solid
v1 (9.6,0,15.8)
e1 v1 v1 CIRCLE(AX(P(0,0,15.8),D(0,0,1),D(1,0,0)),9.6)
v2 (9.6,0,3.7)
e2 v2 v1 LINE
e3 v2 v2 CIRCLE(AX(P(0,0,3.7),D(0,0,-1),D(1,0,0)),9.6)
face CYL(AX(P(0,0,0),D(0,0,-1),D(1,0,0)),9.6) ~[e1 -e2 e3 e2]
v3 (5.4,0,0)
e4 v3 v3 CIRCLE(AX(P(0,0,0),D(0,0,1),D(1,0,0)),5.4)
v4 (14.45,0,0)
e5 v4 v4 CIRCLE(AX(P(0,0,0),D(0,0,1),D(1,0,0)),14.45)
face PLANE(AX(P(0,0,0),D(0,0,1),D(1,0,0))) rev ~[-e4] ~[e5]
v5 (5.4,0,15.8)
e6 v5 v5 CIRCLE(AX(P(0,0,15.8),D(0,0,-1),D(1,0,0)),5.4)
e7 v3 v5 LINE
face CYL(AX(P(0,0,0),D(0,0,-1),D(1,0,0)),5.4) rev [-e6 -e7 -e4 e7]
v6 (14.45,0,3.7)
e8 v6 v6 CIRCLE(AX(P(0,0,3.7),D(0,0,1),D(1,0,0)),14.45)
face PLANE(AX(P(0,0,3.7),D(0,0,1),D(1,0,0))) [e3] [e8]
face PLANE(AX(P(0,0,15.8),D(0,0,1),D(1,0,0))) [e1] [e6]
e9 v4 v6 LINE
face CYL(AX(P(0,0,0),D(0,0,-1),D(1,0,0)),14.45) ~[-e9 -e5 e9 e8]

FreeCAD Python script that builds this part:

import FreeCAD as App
import Part
import Sketcher
from FreeCAD import Vector
Q = App.Units.Quantity

doc = App.newDocument("Part")
body = doc.addObject("PartDesign::Body", "Body")

# Sketch on XY plane
sketch1 = doc.addObject("Sketcher::SketchObject", "Sketch")
body.addObject(sketch1)
sketch1.AttachmentSupport = (doc.XY_Plane, [""])
sketch1.MapMode = "FlatFace"
sketch1.addGeometry(Part.Circle(Vector(0, 0, 0), Vector(0, 0, 1), 9.6), False)
sketch1.addConstraint([
    Sketcher.Constraint("Coincident", 0, 3, -1, 1),
    Sketcher.Constraint("Diameter", 0, Q("19.2 mm")),
])
pad1 = doc.addObject("PartDesign::Pad", "Pad")
body.addObject(pad1)
pad1.Profile = sketch1
pad1.Length = 15.8

# Sketch on XY plane
sketch2 = doc.addObject("Sketcher::SketchObject", "Sketch001")
body.addObject(sketch2)
sketch2.AttachmentSupport = (doc.XY_Plane, [""])
sketch2.MapMode = "FlatFace"
sketch2.addGeometry(Part.Circle(Vector(0, 0, 0), Vector(0, 0, 1), 5.4), False)
sketch2.addConstraint([
    Sketcher.Constraint("Coincident", 0, 3, -1, 1),
    Sketcher.Constraint("Diameter", 0, Q("10.8 mm")),
])
pocket1 = doc.addObject("PartDesign::Pocket", "Pocket")
body.addObject(pocket1)
pocket1.Profile = sketch2
pocket1.Length = 20
pocket1.Reversed = True

# Sketch on XY plane
sketch3 = doc.addObject("Sketcher::SketchObject", "Sketch002")
body.addObject(sketch3)
sketch3.AttachmentSupport = (doc.XY_Plane, [""])
sketch3.MapMode = "FlatFace"
sketch3.addGeometry(Part.Circle(Vector(0, 0, 0), Vector(0, 0, 1), 14.45), False)
sketch3.addConstraint([
    Sketcher.Constraint("Coincident", 0, 3, -1, 1),
    Sketcher.Constraint("Diameter", 0, Q("28.9 mm")),
])
pad2 = doc.addObject("PartDesign::Pad", "Pad001")
body.addObject(pad2)
pad2.Profile = sketch3
pad2.Length = 3.7

# Sketch on XY plane
sketch4 = doc.addObject("Sketcher::SketchObject", "Sketch003")
body.addObject(sketch4)
sketch4.AttachmentSupport = (doc.XY_Plane, [""])
sketch4.MapMode = "FlatFace"
sketch4.addGeometry(Part.Circle(Vector(0, 0, 0), Vector(0, 0, 1), 5.4), False)
sketch4.addConstraint([
    Sketcher.Constraint("Coincident", 0, 3, -1, 1),
    Sketcher.Constraint("Diameter", 0, Q("10.8 mm")),
])
pocket2 = doc.addObject("PartDesign::Pocket", "Pocket001")
body.addObject(pocket2)
pocket2.Profile = sketch4
pocket2.Length = 3.7
pocket2.Reversed = True

doc.recompute()
